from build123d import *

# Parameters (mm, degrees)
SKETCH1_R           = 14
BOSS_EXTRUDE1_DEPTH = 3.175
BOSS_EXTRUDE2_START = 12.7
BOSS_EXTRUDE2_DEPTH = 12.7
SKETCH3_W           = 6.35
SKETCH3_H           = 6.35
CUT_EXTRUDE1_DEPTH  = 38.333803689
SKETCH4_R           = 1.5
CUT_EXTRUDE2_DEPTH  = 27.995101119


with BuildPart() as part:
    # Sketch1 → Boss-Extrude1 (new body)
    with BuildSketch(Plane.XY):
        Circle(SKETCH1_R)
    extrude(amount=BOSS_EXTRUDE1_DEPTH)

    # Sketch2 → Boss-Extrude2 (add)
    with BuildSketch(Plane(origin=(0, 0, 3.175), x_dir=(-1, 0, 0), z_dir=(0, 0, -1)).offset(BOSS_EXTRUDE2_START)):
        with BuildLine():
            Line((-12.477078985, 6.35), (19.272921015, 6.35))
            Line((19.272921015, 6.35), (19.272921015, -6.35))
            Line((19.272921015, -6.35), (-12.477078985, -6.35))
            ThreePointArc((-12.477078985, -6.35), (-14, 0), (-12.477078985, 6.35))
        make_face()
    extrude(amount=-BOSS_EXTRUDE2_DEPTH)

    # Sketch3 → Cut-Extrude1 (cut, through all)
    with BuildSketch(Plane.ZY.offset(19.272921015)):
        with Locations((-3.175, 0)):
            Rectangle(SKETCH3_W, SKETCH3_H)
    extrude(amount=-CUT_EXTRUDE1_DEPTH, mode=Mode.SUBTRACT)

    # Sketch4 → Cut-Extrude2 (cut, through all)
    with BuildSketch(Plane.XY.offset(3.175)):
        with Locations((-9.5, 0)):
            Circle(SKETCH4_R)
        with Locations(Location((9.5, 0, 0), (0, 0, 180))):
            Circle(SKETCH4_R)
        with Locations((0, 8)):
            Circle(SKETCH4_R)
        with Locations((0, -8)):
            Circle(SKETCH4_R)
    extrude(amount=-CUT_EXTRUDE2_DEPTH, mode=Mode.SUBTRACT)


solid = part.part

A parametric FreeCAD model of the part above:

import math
import FreeCAD as App
import Part
import Sketcher
Q = App.Units.Quantity


def add_polygon(sketch, points):
    """Adds a closed chain of lines whose ends are joined by coincident constraints."""
    first, n = sketch.GeometryCount, len(points)
    for a, b in zip(points, points[1:] + points[:1]):
        sketch.addGeometry(Part.LineSegment(App.Vector(*a, 0), App.Vector(*b, 0)), False)
    for i in range(n):
        sketch.addConstraint(Sketcher.Constraint("Coincident", first + i, 2, first + (i + 1) % n, 1))

doc = App.newDocument("Part")
body = doc.addObject("PartDesign::Body", "Body")

sketch1 = body.newObject("Sketcher::SketchObject", "Sketch")
sketch1.AttachmentSupport = (doc.getObject("XY_Plane"), [""])
sketch1.MapMode = "FlatFace"
sketch1.addGeometry(Part.Circle(App.Vector(0, 0, 0), App.Vector(0, 0, 1), 14), False)
sketch1.addConstraint(Sketcher.Constraint("Coincident", 0, 3, -1, 1))
sketch1.addConstraint(Sketcher.Constraint("Diameter", 0, 28.0))
pad1 = body.newObject("PartDesign::Pad", "Pad")
pad1.Profile = sketch1
pad1.Length = Q("0.125 in")

sketch2 = body.newObject("Sketcher::SketchObject", "Sketch001")
sketch2.AttachmentSupport = (doc.getObject("XY_Plane"), [""])
sketch2.MapMode = "FlatFace"
sketch2.AttachmentOffset = App.Placement(App.Vector(0, 0, -0.375 * 25.4), App.Rotation())
sketch2.addGeometry(Part.LineSegment(App.Vector(-19.272921, 6.35, 0), App.Vector(12.477079, 6.35, 0)), False)
sketch2.addGeometry(Part.ArcOfCircle(Part.Circle(App.Vector(0, 0, 0), App.Vector(0, 0, 1), 14), math.radians(-26.973055), math.radians(26.973055)), False)
sketch2.addGeometry(Part.LineSegment(App.Vector(12.477079, -6.35, 0), App.Vector(-19.272921, -6.35, 0)), False)
sketch2.addGeometry(Part.LineSegment(App.Vector(-19.272921, -6.35, 0), App.Vector(-19.272921, 6.35, 0)), False)
sketch2.addConstraint(Sketcher.Constraint("Coincident", 0, 2, 1, 2))
sketch2.addConstraint(Sketcher.Constraint("Coincident", 1, 1, 2, 1))
sketch2.addConstraint(Sketcher.Constraint("Coincident", 2, 2, 3, 1))
sketch2.addConstraint(Sketcher.Constraint("Coincident", 3, 2, 0, 1))
sketch2.addConstraint(Sketcher.Constraint("Horizontal", 0))
sketch2.addConstraint(Sketcher.Constraint("Horizontal", 2))
sketch2.addConstraint(Sketcher.Constraint("Vertical", 3))
sketch2.addConstraint(Sketcher.Constraint("Coincident", 1, 3, -1, 1))
sketch2.addConstraint(Sketcher.Constraint("Vertical", 0, 2, 1, 1))
sketch2.addConstraint(Sketcher.Constraint("DistanceY", 3, 1, 3, 2, Q("0.5 in")))
sketch2.addConstraint(Sketcher.Constraint("DistanceX", 0, 1, 0, 2, Q("1.25 in")))
sketch2.addConstraint(Sketcher.Constraint("Radius", 1, 14.0))
pad2 = body.newObject("PartDesign::Pad", "Pad001")
pad2.Profile = sketch2
pad2.Length = Q("0.5 in")

sketch3 = body.newObject("Sketcher::SketchObject", "Sketch002")
sketch3.AttachmentSupport = (doc.getObject("YZ_Plane"), [""])
sketch3.MapMode = "FlatFace"
sketch3.AttachmentOffset = App.Placement(App.Vector(0, 0, -19.272921), App.Rotation())
add_polygon(sketch3, [(3.175, -6.35), (-3.175, -6.35), (-3.175, 0), (3.175, 0)])
sketch3.addConstraint(Sketcher.Constraint("Horizontal", 0))
sketch3.addConstraint(Sketcher.Constraint("Vertical", 1))
sketch3.addConstraint(Sketcher.Constraint("Horizontal", 2))
sketch3.addConstraint(Sketcher.Constraint("Vertical", 3))
sketch3.addConstraint(Sketcher.Constraint("Symmetric", 1, 2, 2, 2, -1, 1))
sketch3.addConstraint(Sketcher.Constraint("Equal", 2, 1))
sketch3.addConstraint(Sketcher.Constraint("DistanceX", 0, 2, 0, 1, Q("0.25 in")))
pocket1 = body.newObject("PartDesign::Pocket", "Pocket")
pocket1.Profile = sketch3
pocket1.Type = "ThroughAll"
pocket1.Reversed = True

sketch4 = body.newObject("Sketcher::SketchObject", "Sketch003")
sketch4.AttachmentSupport = (doc.getObject("XY_Plane"), [""])
sketch4.MapMode = "FlatFace"
sketch4.AttachmentOffset = App.Placement(App.Vector(0, 0, 0.125 * 25.4), App.Rotation())
sketch4.addGeometry(Part.Circle(App.Vector(-9.5, 0, 0), App.Vector(0, 0, 1), 1.5), False)
sketch4.addGeometry(Part.Circle(App.Vector(9.5, 0, 0), App.Vector(0, 0, 1), 1.5), False)
sketch4.addGeometry(Part.Circle(App.Vector(0, 8, 0), App.Vector(0, 0, 1), 1.5), False)
sketch4.addGeometry(Part.Circle(App.Vector(0, -8, 0), App.Vector(0, 0, 1), 1.5), False)
sketch4.addConstraint(Sketcher.Constraint("Equal", 0, 1))
sketch4.addConstraint(Sketcher.Constraint("Equal", 1, 2))
sketch4.addConstraint(Sketcher.Constraint("Equal", 2, 3))
sketch4.addConstraint(Sketcher.Constraint("Symmetric", 0, 3, 1, 3, -1, 1))
sketch4.addConstraint(Sketcher.Constraint("Symmetric", 2, 3, 3, 3, -1, 1))
sketch4.addConstraint(Sketcher.Constraint("PointOnObject", 0, 3, -1))
sketch4.addConstraint(Sketcher.Constraint("PointOnObject", 2, 3, -2))
sketch4.addConstraint(Sketcher.Constraint("Diameter", 0, 3.0))
sketch4.addConstraint(Sketcher.Constraint("DistanceX", 0, 3, -1, 1, 9.5))
sketch4.addConstraint(Sketcher.Constraint("DistanceY", -1, 1, 2, 3, 8.0))
pocket2 = body.newObject("PartDesign::Pocket", "Pocket001")
pocket2.Profile = sketch4
pocket2.Type = "ThroughAll"

doc.recompute()
